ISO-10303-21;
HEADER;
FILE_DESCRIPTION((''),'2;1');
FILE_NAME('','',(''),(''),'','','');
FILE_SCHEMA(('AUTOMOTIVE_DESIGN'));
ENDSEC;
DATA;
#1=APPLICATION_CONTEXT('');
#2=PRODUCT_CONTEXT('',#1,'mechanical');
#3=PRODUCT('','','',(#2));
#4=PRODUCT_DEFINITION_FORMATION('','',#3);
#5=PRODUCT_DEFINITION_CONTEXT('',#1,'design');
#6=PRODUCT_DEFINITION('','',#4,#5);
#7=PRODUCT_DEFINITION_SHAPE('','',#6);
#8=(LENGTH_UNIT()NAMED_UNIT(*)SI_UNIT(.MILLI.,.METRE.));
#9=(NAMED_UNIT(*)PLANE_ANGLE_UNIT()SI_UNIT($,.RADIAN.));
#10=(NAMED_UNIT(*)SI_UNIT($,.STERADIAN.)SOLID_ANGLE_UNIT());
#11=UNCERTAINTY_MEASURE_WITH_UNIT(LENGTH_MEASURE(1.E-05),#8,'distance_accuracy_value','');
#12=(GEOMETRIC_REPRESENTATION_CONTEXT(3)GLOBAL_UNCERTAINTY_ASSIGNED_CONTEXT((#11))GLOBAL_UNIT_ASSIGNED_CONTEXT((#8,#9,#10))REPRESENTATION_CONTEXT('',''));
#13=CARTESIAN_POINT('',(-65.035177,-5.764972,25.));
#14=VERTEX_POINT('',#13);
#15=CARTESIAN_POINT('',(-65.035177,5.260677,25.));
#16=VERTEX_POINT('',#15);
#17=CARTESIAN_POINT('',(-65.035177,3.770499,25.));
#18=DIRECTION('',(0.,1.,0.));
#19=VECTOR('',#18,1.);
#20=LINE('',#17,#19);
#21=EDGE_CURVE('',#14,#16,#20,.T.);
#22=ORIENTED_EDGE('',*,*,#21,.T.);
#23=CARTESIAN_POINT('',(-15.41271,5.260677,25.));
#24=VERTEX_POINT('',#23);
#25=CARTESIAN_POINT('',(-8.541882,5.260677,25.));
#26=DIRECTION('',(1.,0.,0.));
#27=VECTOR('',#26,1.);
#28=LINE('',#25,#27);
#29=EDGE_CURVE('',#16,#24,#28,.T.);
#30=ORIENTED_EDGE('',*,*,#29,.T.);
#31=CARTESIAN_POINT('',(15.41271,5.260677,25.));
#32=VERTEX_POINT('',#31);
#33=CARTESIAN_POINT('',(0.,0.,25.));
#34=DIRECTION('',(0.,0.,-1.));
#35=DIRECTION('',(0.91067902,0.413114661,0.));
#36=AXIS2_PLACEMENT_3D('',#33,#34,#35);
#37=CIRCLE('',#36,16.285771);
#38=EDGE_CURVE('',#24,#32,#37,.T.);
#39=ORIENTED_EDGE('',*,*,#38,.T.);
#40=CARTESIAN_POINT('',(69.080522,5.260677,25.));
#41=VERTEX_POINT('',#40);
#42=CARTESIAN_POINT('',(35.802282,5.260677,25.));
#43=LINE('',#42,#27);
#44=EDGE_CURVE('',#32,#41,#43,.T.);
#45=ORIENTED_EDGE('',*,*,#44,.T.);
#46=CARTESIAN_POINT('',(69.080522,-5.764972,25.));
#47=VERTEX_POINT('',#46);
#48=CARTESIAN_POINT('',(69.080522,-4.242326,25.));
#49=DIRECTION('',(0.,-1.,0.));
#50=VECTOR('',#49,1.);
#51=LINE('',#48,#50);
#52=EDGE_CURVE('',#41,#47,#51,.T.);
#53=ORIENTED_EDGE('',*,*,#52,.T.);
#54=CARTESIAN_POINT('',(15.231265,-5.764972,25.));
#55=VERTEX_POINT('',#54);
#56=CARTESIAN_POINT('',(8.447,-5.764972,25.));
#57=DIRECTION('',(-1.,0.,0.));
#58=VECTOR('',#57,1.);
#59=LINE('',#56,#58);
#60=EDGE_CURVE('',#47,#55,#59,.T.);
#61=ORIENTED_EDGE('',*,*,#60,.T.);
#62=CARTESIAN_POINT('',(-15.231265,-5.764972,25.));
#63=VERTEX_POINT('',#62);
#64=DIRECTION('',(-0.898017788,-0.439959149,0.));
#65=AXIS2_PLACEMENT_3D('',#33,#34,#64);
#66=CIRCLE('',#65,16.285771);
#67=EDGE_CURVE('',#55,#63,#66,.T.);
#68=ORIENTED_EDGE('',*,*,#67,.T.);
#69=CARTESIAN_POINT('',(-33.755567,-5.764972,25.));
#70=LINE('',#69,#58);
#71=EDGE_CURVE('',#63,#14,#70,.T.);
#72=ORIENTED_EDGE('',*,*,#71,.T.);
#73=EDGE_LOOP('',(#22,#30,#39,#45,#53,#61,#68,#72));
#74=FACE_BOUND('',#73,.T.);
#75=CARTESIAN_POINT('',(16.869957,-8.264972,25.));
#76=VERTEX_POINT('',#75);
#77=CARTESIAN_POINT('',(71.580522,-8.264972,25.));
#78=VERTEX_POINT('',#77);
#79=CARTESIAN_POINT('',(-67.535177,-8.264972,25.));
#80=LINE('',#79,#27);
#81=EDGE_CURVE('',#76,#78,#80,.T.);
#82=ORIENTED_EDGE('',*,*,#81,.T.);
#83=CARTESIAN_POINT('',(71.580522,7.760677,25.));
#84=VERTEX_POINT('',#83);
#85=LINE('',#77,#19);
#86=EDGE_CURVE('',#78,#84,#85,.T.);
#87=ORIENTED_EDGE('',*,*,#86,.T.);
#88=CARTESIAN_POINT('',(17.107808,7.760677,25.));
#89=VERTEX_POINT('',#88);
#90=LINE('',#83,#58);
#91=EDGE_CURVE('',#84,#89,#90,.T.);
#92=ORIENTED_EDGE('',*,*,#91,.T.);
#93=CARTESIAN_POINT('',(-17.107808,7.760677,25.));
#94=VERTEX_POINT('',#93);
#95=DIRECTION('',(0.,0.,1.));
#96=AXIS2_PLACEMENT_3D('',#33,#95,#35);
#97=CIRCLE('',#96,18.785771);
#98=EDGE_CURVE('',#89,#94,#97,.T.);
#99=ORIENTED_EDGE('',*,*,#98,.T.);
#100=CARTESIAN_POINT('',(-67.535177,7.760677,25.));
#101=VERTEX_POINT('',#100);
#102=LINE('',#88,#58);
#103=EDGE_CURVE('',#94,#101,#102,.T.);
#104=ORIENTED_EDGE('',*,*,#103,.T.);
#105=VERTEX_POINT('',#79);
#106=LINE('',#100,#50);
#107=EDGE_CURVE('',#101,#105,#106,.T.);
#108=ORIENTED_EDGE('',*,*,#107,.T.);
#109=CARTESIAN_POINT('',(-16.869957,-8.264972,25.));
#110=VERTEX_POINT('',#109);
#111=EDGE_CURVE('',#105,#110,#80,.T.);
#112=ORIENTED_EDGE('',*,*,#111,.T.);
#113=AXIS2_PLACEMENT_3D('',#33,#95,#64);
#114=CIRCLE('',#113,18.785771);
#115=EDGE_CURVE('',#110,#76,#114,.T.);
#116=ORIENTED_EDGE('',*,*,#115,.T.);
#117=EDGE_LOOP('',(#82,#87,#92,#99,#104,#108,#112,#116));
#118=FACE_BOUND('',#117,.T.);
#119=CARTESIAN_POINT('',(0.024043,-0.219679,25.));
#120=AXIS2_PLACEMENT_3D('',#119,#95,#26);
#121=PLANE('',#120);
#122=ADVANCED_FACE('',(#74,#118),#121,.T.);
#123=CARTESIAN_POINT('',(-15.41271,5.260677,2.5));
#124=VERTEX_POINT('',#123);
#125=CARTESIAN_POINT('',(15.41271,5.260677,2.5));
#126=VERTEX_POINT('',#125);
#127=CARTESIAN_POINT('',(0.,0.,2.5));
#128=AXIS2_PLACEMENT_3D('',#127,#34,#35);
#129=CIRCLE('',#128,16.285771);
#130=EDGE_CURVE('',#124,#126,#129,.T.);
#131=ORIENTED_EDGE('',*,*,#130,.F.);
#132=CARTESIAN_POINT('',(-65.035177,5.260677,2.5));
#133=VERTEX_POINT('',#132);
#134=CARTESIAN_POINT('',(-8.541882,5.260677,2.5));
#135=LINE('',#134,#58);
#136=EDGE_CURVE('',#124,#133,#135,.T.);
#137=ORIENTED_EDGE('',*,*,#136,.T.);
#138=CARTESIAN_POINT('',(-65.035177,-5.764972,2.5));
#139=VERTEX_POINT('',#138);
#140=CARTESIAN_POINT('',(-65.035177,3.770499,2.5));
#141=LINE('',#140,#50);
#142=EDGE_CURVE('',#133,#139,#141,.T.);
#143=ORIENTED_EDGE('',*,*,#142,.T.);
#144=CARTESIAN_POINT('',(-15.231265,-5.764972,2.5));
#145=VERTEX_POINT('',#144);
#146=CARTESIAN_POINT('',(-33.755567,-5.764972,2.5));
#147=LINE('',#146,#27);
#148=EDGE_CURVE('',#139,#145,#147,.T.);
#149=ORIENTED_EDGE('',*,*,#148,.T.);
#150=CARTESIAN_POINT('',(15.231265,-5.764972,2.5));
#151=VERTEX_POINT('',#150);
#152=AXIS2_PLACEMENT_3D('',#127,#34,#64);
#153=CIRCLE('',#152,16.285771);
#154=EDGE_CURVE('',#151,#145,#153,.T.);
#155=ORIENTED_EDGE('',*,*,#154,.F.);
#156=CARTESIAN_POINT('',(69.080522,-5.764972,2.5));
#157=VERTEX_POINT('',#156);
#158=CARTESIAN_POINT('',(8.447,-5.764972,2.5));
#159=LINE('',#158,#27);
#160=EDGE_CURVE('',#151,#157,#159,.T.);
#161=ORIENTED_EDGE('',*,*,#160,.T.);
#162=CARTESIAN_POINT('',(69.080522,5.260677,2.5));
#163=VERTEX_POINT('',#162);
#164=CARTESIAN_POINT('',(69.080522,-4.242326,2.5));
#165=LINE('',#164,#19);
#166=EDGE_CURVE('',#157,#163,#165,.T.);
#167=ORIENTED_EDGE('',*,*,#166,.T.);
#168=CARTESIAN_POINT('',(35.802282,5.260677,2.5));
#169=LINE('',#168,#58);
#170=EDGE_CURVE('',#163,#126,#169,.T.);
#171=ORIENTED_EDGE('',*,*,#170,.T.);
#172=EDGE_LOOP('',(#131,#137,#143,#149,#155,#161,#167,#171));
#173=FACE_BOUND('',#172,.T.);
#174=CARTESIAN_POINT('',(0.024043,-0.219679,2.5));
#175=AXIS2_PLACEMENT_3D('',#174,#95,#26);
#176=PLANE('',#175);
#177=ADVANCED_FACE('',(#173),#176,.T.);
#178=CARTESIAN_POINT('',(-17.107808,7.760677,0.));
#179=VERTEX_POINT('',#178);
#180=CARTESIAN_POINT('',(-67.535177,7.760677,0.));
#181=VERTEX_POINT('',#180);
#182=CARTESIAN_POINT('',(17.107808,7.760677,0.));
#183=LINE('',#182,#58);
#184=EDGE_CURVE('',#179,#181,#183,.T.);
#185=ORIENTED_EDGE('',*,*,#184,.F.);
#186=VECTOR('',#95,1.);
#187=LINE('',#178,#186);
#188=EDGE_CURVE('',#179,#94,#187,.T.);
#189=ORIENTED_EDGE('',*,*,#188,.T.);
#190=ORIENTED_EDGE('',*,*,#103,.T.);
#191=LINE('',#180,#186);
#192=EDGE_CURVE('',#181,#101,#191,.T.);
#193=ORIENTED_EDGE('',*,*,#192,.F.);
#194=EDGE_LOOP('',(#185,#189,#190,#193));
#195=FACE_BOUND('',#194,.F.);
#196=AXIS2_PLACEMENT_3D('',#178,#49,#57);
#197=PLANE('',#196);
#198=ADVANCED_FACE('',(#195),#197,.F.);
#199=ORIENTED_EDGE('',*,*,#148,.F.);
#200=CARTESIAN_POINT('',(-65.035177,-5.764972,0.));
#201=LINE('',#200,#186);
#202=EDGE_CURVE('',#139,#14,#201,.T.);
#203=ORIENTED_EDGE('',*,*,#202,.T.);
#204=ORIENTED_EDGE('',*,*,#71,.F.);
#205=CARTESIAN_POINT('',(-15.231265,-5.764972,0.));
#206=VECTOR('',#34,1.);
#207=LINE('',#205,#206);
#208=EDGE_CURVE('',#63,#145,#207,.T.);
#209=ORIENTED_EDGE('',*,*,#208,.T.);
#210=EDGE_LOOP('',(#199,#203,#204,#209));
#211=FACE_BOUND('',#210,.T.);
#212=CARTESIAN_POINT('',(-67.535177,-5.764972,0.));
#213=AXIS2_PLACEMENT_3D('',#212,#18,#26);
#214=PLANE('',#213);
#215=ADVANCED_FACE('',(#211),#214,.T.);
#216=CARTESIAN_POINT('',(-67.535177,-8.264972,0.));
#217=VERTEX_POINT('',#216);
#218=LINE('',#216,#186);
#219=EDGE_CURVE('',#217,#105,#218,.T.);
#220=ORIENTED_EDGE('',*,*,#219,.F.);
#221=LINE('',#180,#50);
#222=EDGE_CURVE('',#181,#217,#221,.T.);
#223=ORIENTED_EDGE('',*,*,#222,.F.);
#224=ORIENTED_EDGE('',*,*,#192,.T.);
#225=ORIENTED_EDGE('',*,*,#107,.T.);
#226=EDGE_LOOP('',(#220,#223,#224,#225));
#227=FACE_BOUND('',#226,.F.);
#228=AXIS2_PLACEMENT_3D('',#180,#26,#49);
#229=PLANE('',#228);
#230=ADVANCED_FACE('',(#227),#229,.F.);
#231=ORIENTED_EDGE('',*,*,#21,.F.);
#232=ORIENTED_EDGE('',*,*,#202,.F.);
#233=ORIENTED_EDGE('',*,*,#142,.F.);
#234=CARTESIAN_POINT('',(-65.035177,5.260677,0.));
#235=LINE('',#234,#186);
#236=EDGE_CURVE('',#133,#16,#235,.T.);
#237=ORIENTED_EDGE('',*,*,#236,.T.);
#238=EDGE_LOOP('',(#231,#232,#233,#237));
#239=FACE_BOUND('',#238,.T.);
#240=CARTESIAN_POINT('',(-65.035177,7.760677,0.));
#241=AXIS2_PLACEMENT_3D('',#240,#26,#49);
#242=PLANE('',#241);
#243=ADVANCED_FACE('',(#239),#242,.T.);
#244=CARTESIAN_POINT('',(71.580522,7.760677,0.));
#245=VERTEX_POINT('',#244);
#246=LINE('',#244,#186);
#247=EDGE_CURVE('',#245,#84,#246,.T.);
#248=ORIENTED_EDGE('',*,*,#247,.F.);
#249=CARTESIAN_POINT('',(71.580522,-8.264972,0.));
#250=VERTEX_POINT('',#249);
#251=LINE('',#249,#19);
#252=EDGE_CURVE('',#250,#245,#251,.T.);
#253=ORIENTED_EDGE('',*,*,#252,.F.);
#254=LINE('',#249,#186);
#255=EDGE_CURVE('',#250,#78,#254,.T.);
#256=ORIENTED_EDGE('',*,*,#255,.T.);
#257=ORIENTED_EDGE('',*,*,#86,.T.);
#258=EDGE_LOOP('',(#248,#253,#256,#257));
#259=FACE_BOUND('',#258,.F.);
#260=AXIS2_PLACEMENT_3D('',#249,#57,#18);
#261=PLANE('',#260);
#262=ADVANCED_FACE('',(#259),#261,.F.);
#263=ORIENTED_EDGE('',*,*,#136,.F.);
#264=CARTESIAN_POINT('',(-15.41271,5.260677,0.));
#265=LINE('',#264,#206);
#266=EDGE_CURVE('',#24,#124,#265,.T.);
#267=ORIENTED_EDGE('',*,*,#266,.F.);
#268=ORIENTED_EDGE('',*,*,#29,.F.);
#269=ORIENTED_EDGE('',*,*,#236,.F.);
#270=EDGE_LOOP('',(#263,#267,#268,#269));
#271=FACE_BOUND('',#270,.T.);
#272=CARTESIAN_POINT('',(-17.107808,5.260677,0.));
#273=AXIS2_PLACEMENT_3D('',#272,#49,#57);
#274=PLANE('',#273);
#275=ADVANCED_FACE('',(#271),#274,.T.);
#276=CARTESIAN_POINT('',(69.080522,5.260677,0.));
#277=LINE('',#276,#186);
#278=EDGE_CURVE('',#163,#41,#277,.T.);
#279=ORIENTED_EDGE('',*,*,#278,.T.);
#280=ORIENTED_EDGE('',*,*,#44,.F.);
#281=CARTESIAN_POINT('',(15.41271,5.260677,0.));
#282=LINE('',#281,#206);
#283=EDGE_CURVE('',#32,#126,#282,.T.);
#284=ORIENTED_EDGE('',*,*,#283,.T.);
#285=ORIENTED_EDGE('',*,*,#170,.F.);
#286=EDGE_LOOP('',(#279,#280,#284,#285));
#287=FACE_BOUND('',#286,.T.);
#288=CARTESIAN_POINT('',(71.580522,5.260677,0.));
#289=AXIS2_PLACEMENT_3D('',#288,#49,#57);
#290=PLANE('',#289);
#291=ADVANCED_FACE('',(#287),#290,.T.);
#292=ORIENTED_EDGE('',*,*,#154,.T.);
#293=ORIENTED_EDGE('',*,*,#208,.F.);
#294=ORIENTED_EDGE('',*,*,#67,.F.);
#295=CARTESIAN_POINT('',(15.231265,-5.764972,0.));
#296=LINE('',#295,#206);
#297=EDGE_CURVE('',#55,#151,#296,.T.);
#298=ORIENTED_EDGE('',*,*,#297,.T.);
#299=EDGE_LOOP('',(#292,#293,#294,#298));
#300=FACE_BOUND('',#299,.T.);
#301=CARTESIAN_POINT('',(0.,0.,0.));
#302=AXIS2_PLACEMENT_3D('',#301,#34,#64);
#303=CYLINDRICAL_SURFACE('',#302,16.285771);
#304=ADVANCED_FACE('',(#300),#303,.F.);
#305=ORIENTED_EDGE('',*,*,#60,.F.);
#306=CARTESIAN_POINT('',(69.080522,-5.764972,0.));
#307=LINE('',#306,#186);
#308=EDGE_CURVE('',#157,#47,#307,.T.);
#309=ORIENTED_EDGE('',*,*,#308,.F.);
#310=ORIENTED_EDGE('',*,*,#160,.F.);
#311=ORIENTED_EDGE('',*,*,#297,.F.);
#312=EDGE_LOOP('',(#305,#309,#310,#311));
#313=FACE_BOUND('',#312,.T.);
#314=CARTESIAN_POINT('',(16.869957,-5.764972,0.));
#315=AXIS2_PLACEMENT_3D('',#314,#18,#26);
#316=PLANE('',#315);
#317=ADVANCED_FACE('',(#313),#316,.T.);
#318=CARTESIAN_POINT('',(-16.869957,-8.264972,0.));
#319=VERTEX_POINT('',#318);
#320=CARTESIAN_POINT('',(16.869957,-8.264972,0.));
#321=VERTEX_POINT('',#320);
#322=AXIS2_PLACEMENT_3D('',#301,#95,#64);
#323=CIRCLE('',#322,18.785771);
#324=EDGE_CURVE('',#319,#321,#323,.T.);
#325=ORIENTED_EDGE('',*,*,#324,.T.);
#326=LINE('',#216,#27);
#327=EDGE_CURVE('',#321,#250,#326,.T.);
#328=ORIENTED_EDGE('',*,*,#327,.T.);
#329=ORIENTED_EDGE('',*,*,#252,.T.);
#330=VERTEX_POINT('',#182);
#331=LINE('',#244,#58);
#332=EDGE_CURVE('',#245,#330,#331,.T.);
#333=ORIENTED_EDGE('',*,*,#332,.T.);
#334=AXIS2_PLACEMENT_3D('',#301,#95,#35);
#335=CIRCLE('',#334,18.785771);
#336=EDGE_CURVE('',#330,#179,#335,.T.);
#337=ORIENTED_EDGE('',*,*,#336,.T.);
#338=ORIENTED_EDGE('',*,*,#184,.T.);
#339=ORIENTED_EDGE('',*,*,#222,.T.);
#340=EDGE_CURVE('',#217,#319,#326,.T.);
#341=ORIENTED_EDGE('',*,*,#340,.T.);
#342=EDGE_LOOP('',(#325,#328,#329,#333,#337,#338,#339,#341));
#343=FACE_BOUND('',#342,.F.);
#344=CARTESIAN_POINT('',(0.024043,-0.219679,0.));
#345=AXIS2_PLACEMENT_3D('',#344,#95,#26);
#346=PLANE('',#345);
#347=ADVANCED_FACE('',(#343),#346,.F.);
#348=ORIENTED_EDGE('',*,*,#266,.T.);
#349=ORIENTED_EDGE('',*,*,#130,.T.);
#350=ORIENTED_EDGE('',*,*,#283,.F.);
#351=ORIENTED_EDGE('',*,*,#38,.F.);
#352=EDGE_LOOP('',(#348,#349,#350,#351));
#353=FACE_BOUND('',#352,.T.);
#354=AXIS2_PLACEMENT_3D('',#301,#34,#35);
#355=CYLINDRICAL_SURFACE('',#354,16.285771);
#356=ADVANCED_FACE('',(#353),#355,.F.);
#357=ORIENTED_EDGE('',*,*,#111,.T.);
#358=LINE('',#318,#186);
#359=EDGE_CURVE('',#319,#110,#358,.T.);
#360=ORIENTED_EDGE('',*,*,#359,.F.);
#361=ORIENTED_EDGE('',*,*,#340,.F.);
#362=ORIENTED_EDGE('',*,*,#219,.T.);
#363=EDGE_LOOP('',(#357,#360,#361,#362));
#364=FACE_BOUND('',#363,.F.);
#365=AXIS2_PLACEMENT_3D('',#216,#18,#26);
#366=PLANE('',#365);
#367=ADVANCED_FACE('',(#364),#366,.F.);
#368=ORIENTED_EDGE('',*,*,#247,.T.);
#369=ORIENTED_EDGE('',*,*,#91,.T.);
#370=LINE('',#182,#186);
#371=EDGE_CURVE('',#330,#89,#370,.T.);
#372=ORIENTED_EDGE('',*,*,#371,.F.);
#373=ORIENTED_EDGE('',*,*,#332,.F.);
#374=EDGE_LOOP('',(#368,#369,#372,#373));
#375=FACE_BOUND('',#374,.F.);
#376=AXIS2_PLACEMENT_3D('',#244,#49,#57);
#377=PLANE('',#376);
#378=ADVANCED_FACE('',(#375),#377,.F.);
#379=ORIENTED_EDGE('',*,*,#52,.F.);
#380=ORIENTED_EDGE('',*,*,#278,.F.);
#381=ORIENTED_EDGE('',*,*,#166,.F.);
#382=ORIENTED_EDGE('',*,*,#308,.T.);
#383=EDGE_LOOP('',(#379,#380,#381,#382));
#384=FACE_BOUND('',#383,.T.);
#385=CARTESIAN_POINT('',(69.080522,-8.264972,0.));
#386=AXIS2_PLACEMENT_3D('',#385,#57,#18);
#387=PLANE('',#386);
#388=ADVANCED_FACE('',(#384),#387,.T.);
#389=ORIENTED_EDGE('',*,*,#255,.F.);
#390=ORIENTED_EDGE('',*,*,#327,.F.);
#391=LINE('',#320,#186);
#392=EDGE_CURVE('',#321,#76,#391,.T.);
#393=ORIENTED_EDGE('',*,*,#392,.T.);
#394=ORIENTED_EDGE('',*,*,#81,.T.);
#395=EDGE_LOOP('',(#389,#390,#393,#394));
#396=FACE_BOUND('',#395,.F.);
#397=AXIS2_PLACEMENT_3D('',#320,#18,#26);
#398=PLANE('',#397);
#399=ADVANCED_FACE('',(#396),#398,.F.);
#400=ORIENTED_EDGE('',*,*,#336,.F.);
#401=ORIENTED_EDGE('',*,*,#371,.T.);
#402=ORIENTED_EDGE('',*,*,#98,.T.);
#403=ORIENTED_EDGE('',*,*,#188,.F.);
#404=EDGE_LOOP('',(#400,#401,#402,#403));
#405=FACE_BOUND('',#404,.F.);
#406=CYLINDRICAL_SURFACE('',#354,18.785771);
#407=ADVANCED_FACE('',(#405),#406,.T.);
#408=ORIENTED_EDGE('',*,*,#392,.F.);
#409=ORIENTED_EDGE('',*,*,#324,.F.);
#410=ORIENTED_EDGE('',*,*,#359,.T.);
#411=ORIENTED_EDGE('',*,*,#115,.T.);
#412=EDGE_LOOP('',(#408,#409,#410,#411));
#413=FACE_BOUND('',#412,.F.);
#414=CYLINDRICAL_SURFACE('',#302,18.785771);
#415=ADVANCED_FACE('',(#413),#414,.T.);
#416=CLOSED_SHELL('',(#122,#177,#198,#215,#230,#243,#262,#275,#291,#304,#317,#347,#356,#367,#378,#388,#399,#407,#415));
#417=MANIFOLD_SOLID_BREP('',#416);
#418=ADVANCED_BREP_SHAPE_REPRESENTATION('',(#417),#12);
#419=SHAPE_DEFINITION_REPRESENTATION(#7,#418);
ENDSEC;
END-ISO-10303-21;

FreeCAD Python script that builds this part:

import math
import FreeCAD as App
import Part
import Sketcher


def faces_at(feature, points):
    """Names of the faces that lie closest to the given points."""
    faces = feature.Shape.Faces
    near = lambda p: min(range(len(faces)), key=lambda i: faces[i].distToShape(Part.Vertex(*p))[0])
    return sorted({f"Face{near(p) + 1}" for p in points})

doc = App.newDocument("Part")
params = doc.addObject("Spreadsheet::Sheet", "Params")
for row, (alias, value) in enumerate([
    ("pad1_length", "25 mm"),
    ("thickness_wall", "2.5 mm"),
], start=1):
    params.set(f"A{row}", alias)
    params.set(f"B{row}", "=" + value)
    params.setAlias(f"B{row}", alias)

body = doc.addObject("PartDesign::Body", "Body")

sketch1 = doc.addObject("Sketcher::SketchObject", "Sketch")
body.addObject(sketch1)
sketch1.AttachmentSupport = (doc.XY_Plane, [""])
sketch1.MapMode = "FlatFace"
sketch1.addGeometry(Part.ArcOfCircle(Part.Circle(App.Vector(0, 0, 0), App.Vector(0, 0, 1), 18.785771), math.radians(24.400644), math.radians(155.599356)), False)
sketch1.addGeometry(Part.LineSegment(App.Vector(-17.107808, 7.760677, 0), App.Vector(-67.535177, 7.760677, 0)), False)
sketch1.addGeometry(Part.LineSegment(App.Vector(-67.535177, 7.760677, 0), App.Vector(-67.535177, -8.264972, 0)), False)
sketch1.addGeometry(Part.LineSegment(App.Vector(-67.535177, -8.264972, 0), App.Vector(-16.869957, -8.264972, 0)), False)
sketch1.addGeometry(Part.ArcOfCircle(Part.Circle(App.Vector(0, 0, 0), App.Vector(0, 0, 1), 18.785771), math.radians(-153.898725), math.radians(-26.101275)), False)
sketch1.addGeometry(Part.LineSegment(App.Vector(16.869957, -8.264972, 0), App.Vector(71.580522, -8.264972, 0)), False)
sketch1.addGeometry(Part.LineSegment(App.Vector(71.580522, -8.264972, 0), App.Vector(71.580522, 7.760677, 0)), False)
sketch1.addGeometry(Part.LineSegment(App.Vector(71.580522, 7.760677, 0), App.Vector(17.107808, 7.760677, 0)), False)
sketch1.addConstraint(Sketcher.Constraint("Coincident", 0, 2, 1, 1))
sketch1.addConstraint(Sketcher.Constraint("Coincident", 1, 2, 2, 1))
sketch1.addConstraint(Sketcher.Constraint("Coincident", 2, 2, 3, 1))
sketch1.addConstraint(Sketcher.Constraint("Coincident", 3, 2, 4, 1))
sketch1.addConstraint(Sketcher.Constraint("Coincident", 4, 2, 5, 1))
sketch1.addConstraint(Sketcher.Constraint("Coincident", 5, 2, 6, 1))
sketch1.addConstraint(Sketcher.Constraint("Coincident", 6, 2, 7, 1))
sketch1.addConstraint(Sketcher.Constraint("Coincident", 7, 2, 0, 1))
sketch1.addConstraint(Sketcher.Constraint("Horizontal", 1))
sketch1.addConstraint(Sketcher.Constraint("Vertical", 2))
sketch1.addConstraint(Sketcher.Constraint("Horizontal", 3))
sketch1.addConstraint(Sketcher.Constraint("Horizontal", 5))
sketch1.addConstraint(Sketcher.Constraint("Vertical", 6))
sketch1.addConstraint(Sketcher.Constraint("Horizontal", 7))
sketch1.addConstraint(Sketcher.Constraint("Coincident", 0, 3, -1, 1))
sketch1.addConstraint(Sketcher.Constraint("Coincident", 4, 3, -1, 1))
sketch1.addConstraint(Sketcher.Constraint("Equal", 0, 4))
sketch1.addConstraint(Sketcher.Constraint("Horizontal", 3, 2, 4, 2))
sketch1.addConstraint(Sketcher.Constraint("Horizontal", 1, 2, 6, 2))
sketch1.addConstraint(Sketcher.Constraint("Radius", 0, 18.785771))
sketch1.addConstraint(Sketcher.Constraint("DistanceX", 1, 2, 1, 1, 50.427369))
sketch1.addConstraint(Sketcher.Constraint("DistanceX", 3, 1, 3, 2, 50.66522))
sketch1.addConstraint(Sketcher.Constraint("DistanceY", 2, 2, 2, 1, 16.025649))
sketch1.addConstraint(Sketcher.Constraint("DistanceX", 5, 1, 5, 2, 54.710565))
pad1 = doc.addObject("PartDesign::Pad", "Pad")
body.addObject(pad1)
pad1.Profile = sketch1
pad1.setExpression("Length", "Params.pad1_length")
doc.recompute()

thickness = doc.addObject("PartDesign::Thickness", "Thickness")
body.addObject(thickness)
thickness.Base = (pad1, faces_at(pad1, [(2.023, 0, 25)]))
thickness.setExpression("Value", "Params.thickness_wall")
thickness.Reversed = True
thickness.Join = "Intersection"

doc.recompute()
